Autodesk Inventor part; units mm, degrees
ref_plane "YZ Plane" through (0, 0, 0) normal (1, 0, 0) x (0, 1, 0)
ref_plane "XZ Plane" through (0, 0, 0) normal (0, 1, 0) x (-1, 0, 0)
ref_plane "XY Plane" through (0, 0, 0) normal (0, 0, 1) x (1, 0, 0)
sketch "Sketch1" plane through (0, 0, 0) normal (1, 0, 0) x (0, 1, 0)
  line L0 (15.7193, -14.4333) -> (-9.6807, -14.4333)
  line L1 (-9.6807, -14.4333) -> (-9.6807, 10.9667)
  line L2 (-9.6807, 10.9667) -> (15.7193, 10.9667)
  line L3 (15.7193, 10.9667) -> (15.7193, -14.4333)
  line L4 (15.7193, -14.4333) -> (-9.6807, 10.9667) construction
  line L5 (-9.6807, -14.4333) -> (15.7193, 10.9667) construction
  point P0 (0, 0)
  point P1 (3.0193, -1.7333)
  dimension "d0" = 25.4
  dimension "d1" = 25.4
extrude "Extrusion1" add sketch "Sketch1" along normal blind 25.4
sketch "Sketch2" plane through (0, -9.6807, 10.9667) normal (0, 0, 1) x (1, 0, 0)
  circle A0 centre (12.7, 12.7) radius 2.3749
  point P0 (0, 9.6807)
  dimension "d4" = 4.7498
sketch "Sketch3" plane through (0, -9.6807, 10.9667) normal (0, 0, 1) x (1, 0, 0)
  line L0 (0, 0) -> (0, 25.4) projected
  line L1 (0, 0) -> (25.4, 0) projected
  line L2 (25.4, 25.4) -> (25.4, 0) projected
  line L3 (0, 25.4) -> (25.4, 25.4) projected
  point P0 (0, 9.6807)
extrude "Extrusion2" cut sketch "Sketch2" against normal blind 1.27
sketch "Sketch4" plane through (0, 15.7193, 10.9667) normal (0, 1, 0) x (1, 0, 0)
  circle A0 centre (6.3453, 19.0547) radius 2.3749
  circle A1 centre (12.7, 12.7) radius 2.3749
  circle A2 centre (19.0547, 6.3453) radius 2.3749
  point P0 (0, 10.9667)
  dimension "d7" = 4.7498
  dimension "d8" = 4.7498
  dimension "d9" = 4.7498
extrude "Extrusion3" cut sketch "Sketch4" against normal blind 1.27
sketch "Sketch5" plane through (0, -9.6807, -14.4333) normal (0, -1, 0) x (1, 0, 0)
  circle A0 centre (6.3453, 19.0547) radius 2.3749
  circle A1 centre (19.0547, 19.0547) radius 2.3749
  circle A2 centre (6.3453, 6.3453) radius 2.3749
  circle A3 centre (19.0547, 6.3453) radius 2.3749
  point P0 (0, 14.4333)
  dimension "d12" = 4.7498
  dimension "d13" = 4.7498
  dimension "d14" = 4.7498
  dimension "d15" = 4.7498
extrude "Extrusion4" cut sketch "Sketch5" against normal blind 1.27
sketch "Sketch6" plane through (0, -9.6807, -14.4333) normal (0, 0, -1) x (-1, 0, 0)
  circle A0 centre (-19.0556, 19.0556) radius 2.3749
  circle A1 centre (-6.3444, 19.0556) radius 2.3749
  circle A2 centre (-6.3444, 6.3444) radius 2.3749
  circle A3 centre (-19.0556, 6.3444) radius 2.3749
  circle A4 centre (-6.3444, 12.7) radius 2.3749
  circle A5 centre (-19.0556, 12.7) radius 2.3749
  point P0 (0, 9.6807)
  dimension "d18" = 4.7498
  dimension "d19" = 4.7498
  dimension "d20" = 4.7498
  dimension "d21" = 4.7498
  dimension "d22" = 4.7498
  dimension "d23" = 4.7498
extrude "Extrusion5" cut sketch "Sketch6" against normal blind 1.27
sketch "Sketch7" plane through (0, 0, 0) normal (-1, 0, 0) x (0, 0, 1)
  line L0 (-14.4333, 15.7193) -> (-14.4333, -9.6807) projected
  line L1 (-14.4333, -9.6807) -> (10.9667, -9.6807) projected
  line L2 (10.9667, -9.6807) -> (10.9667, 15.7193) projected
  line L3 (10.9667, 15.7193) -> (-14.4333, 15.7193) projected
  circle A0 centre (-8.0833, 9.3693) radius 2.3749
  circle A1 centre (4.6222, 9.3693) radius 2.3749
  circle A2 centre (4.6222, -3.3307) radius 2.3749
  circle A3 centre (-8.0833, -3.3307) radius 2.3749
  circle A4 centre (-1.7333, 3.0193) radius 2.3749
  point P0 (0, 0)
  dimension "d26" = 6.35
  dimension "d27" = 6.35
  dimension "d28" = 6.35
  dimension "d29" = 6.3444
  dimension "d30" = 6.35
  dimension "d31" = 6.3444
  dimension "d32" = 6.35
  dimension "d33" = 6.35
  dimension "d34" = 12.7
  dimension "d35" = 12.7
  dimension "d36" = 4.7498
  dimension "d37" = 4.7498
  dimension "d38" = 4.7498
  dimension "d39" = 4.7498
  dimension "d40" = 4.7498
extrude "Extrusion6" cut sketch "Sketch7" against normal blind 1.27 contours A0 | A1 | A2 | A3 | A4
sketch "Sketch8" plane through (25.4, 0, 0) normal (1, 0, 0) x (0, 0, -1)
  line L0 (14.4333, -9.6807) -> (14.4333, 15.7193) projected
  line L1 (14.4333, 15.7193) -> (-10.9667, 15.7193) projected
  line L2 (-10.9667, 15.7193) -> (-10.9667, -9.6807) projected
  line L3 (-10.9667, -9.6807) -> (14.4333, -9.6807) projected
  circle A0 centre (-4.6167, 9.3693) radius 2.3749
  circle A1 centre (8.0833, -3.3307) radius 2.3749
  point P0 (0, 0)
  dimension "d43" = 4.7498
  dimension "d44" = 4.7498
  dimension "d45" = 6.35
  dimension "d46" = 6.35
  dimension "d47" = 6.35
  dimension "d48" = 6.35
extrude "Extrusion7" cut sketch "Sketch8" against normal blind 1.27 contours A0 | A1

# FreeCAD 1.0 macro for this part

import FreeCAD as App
import Part
import Sketcher

V = App.Vector
Q = App.Units.Quantity


def add_polygon(sketch, points):
    """Adds a closed chain of lines whose ends are joined by coincident constraints."""
    first, n = sketch.GeometryCount, len(points)
    for a, b in zip(points, points[1:] + points[:1]):
        sketch.addGeometry(Part.LineSegment(App.Vector(*a, 0), App.Vector(*b, 0)), False)
    for i in range(n):
        sketch.addConstraint(Sketcher.Constraint("Coincident", first + i, 2, first + (i + 1) % n, 1))

doc = App.newDocument("Part")
body = doc.addObject("PartDesign::Body", "Body")

sketch1 = body.newObject("Sketcher::SketchObject", "Sketch")
sketch1.AttachmentSupport = (doc.getObject("YZ_Plane"), [""])
sketch1.MapMode = "FlatFace"
add_polygon(sketch1, [(-10, -14), (16, -14), (16, 11), (-10, 11)])
sketch1.addConstraint([
    Sketcher.Constraint("Horizontal", 0),
    Sketcher.Constraint("Vertical", 1),
    Sketcher.Constraint("Horizontal", 2),
    Sketcher.Constraint("Vertical", 3),
    Sketcher.Constraint("Equal", 2, 1),
    Sketcher.Constraint("DistanceX", 0, 1, 0, 2, Q("1 in")),
    Sketcher.Constraint("DistanceX", -1, 1, 0, 2, Q("15.7193 mm")),
    Sketcher.Constraint("DistanceY", 0, 2, -1, 1, Q("14.4333 mm")),
])
pad1 = body.newObject("PartDesign::Pad", "Pad")
pad1.Profile = sketch1
pad1.Length = Q("1 in")

sketch2 = body.newObject("Sketcher::SketchObject", "Sketch001")
sketch2.AttachmentSupport = (doc.getObject("XY_Plane"), [""])
sketch2.MapMode = "FlatFace"
sketch2.AttachmentOffset = App.Placement(V(0, 0, 10.9667), App.Rotation())
sketch2.addGeometry(Part.Circle(V(12.7, 3, 0), V(0, 0, 1), 2.4), False)
sketch2.addConstraint([
    Sketcher.Constraint("Diameter", 0, Q("0.187 in")),
    Sketcher.Constraint("DistanceX", -1, 1, 0, 3, Q("0.5 in")),
    Sketcher.Constraint("DistanceY", -1, 1, 0, 3, Q("3.0193 mm")),
])
pocket1 = body.newObject("PartDesign::Pocket", "Pocket")
pocket1.Profile = sketch2
pocket1.Length = Q("0.05 in")

sketch3 = body.newObject("Sketcher::SketchObject", "Sketch002")
sketch3.AttachmentSupport = (doc.getObject("XZ_Plane"), [""])
sketch3.MapMode = "FlatFace"
sketch3.AttachmentOffset = App.Placement(V(0, 0, -15.7193), App.Rotation())
sketch3.addGeometry([
    Part.Circle(V(6.3, -8.1, 0), V(0, 0, 1), 2.4),
    Part.Circle(V(12.7, -1.7, 0), V(0, 0, 1), 2.4),
    Part.Circle(V(19.1, 4.6, 0), V(0, 0, 1), 2.4),
], False)
sketch3.addConstraint([
    Sketcher.Constraint("Equal", 0, 1),
    Sketcher.Constraint("Equal", 1, 2),
    Sketcher.Constraint("Diameter", 0, Q("0.187 in")),
    Sketcher.Constraint("DistanceX", -1, 1, 1, 3, Q("0.5 in")),
    Sketcher.Constraint("DistanceX", -1, 1, 0, 3, Q("6.3453 mm")),
    Sketcher.Constraint("DistanceY", 0, 3, -1, 1, Q("8.088 mm")),
    Sketcher.Constraint("DistanceY", 1, 3, -1, 1, Q("1.7333 mm")),
    Sketcher.Constraint("DistanceX", -1, 1, 2, 3, Q("19.0547 mm")),
    Sketcher.Constraint("DistanceY", -1, 1, 2, 3, Q("4.6214 mm")),
])
pocket2 = body.newObject("PartDesign::Pocket", "Pocket001")
pocket2.Profile = sketch3
pocket2.Length = Q("0.05 in")
pocket2.Reversed = True

sketch4 = body.newObject("Sketcher::SketchObject", "Sketch003")
sketch4.AttachmentSupport = (doc.getObject("XZ_Plane"), [""])
sketch4.MapMode = "FlatFace"
sketch4.AttachmentOffset = App.Placement(V(0, 0, 9.6807), App.Rotation())
sketch4.addGeometry([
    Part.Circle(V(6.3, 4.6, 0), V(0, 0, 1), 2.4),
    Part.Circle(V(19.1, 4.6, 0), V(0, 0, 1), 2.4),
    Part.Circle(V(6.3, -8.1, 0), V(0, 0, 1), 2.4),
    Part.Circle(V(19.1, -8.1, 0), V(0, 0, 1), 2.4),
], False)
sketch4.addConstraint([
    Sketcher.Constraint("Equal", 0, 1),
    Sketcher.Constraint("Equal", 1, 2),
    Sketcher.Constraint("Equal", 2, 3),
    Sketcher.Constraint("Horizontal", 0, 3, 1, 3),
    Sketcher.Constraint("Horizontal", 2, 3, 3, 3),
    Sketcher.Constraint("Vertical", 0, 3, 2, 3),
    Sketcher.Constraint("Vertical", 1, 3, 3, 3),
    Sketcher.Constraint("Diameter", 0, Q("0.187 in")),
    Sketcher.Constraint("DistanceX", -1, 1, 0, 3, Q("6.3453 mm")),
    Sketcher.Constraint("DistanceY", -1, 1, 0, 3, Q("4.6214 mm")),
    Sketcher.Constraint("DistanceX", -1, 1, 1, 3, Q("19.0547 mm")),
    Sketcher.Constraint("DistanceY", 2, 3, -1, 1, Q("8.088 mm")),
])
pocket3 = body.newObject("PartDesign::Pocket", "Pocket002")
pocket3.Profile = sketch4
pocket3.Length = Q("0.05 in")

sketch5 = body.newObject("Sketcher::SketchObject", "Sketch004")
sketch5.AttachmentSupport = (doc.getObject("XY_Plane"), [""])
sketch5.MapMode = "FlatFace"
sketch5.AttachmentOffset = App.Placement(V(0, 0, -14.4333), App.Rotation())
sketch5.addGeometry([
    Part.Circle(V(19.1, 9.4, 0), V(0, 0, 1), 2.4),
    Part.Circle(V(6.3, 9.4, 0), V(0, 0, 1), 2.4),
    Part.Circle(V(6.3, -3.3, 0), V(0, 0, 1), 2.4),
    Part.Circle(V(19.1, -3.3, 0), V(0, 0, 1), 2.4),
    Part.Circle(V(6.3, 3, 0), V(0, 0, 1), 2.4),
    Part.Circle(V(19.1, 3, 0), V(0, 0, 1), 2.4),
], False)
sketch5.addConstraint([
    Sketcher.Constraint("Equal", 0, 1),
    Sketcher.Constraint("Equal", 1, 2),
    Sketcher.Constraint("Equal", 2, 3),
    Sketcher.Constraint("Equal", 3, 4),
    Sketcher.Constraint("Equal", 4, 5),
    Sketcher.Constraint("Horizontal", 0, 3, 1, 3),
    Sketcher.Constraint("Horizontal", 2, 3, 3, 3),
    Sketcher.Constraint("Horizontal", 4, 3, 5, 3),
    Sketcher.Constraint("Vertical", 1, 3, 2, 3),
    Sketcher.Constraint("Vertical", 0, 3, 3, 3),
    Sketcher.Constraint("Vertical", 2, 3, 4, 3),
    Sketcher.Constraint("Vertical", 3, 3, 5, 3),
    Sketcher.Constraint("Diameter", 0, Q("0.187 in")),
    Sketcher.Constraint("DistanceY", -1, 1, 0, 3, Q("0.3691 in")),
    Sketcher.Constraint("DistanceX", -1, 1, 0, 3, Q("19.0556 mm")),
    Sketcher.Constraint("DistanceX", -1, 1, 1, 3, Q("6.3444 mm")),
    Sketcher.Constraint("DistanceY", 2, 3, -1, 1, Q("3.3363 mm")),
    Sketcher.Constraint("DistanceY", -1, 1, 4, 3, Q("3.0193 mm")),
])
pocket4 = body.newObject("PartDesign::Pocket", "Pocket003")
pocket4.Profile = sketch5
pocket4.Length = Q("0.05 in")
pocket4.Reversed = True

sketch6 = body.newObject("Sketcher::SketchObject", "Sketch005")
sketch6.AttachmentSupport = (doc.getObject("YZ_Plane"), [""])
sketch6.MapMode = "FlatFace"
sketch6.addGeometry([
    Part.Circle(V(9.4, -8.1, 0), V(0, 0, 1), 2.4),
    Part.Circle(V(9.4, 4.6, 0), V(0, 0, 1), 2.4),
    Part.Circle(V(-3.3, 4.6, 0), V(0, 0, 1), 2.4),
    Part.Circle(V(-3.3, -8.1, 0), V(0, 0, 1), 2.4),
    Part.Circle(V(3, -1.7, 0), V(0, 0, 1), 2.4),
], False)
sketch6.addConstraint([
    Sketcher.Constraint("Equal", 0, 1),
    Sketcher.Constraint("Equal", 1, 2),
    Sketcher.Constraint("Equal", 2, 3),
    Sketcher.Constraint("Equal", 3, 4),
    Sketcher.Constraint("Horizontal", 1, 3, 2, 3),
    Sketcher.Constraint("Horizontal", 0, 3, 3, 3),
    Sketcher.Constraint("Vertical", 0, 3, 1, 3),
    Sketcher.Constraint("Vertical", 2, 3, 3, 3),
    Sketcher.Constraint("Diameter", 0, Q("0.187 in")),
    Sketcher.Constraint("DistanceX", 2, 3, 1, 3, Q("0.5 in")),
    Sketcher.Constraint("DistanceX", 4, 3, 0, 3, Q("0.25 in")),
    Sketcher.Constraint("DistanceY", 0, 3, 4, 3, Q("0.25 in")),
    Sketcher.Constraint("DistanceX", -1, 1, 0, 3, Q("9.3693 mm")),
    Sketcher.Constraint("DistanceY", 0, 3, -1, 1, Q("8.0833 mm")),
    Sketcher.Constraint("DistanceY", -1, 1, 1, 3, Q("4.6222 mm")),
])
pocket5 = body.newObject("PartDesign::Pocket", "Pocket004")
pocket5.Profile = sketch6
pocket5.Length = Q("0.05 in")
pocket5.Reversed = True

sketch7 = body.newObject("Sketcher::SketchObject", "Sketch006")
sketch7.AttachmentSupport = (doc.getObject("YZ_Plane"), [""])
sketch7.MapMode = "FlatFace"
sketch7.AttachmentOffset = App.Placement(V(0, 0, 1 * 25.4), App.Rotation())
sketch7.addGeometry([
    Part.Circle(V(9.4, 4.6, 0), V(0, 0, 1), 2.4),
    Part.Circle(V(-3.3, -8.1, 0), V(0, 0, 1), 2.4),
], False)
sketch7.addConstraint([
    Sketcher.Constraint("Equal", 0, 1),
    Sketcher.Constraint("Diameter", 0, Q("0.187 in")),
    Sketcher.Constraint("DistanceX", 1, 3, 0, 3, Q("0.5 in")),
    Sketcher.Constraint("DistanceY", 1, 3, 0, 3, Q("0.5 in")),
    Sketcher.Constraint("DistanceX", -1, 1, 0, 3, Q("9.3693 mm")),
    Sketcher.Constraint("DistanceY", -1, 1, 0, 3, Q("4.6167 mm")),
])
pocket6 = body.newObject("PartDesign::Pocket", "Pocket005")
pocket6.Profile = sketch7
pocket6.Length = Q("0.05 in")

doc.recompute()
